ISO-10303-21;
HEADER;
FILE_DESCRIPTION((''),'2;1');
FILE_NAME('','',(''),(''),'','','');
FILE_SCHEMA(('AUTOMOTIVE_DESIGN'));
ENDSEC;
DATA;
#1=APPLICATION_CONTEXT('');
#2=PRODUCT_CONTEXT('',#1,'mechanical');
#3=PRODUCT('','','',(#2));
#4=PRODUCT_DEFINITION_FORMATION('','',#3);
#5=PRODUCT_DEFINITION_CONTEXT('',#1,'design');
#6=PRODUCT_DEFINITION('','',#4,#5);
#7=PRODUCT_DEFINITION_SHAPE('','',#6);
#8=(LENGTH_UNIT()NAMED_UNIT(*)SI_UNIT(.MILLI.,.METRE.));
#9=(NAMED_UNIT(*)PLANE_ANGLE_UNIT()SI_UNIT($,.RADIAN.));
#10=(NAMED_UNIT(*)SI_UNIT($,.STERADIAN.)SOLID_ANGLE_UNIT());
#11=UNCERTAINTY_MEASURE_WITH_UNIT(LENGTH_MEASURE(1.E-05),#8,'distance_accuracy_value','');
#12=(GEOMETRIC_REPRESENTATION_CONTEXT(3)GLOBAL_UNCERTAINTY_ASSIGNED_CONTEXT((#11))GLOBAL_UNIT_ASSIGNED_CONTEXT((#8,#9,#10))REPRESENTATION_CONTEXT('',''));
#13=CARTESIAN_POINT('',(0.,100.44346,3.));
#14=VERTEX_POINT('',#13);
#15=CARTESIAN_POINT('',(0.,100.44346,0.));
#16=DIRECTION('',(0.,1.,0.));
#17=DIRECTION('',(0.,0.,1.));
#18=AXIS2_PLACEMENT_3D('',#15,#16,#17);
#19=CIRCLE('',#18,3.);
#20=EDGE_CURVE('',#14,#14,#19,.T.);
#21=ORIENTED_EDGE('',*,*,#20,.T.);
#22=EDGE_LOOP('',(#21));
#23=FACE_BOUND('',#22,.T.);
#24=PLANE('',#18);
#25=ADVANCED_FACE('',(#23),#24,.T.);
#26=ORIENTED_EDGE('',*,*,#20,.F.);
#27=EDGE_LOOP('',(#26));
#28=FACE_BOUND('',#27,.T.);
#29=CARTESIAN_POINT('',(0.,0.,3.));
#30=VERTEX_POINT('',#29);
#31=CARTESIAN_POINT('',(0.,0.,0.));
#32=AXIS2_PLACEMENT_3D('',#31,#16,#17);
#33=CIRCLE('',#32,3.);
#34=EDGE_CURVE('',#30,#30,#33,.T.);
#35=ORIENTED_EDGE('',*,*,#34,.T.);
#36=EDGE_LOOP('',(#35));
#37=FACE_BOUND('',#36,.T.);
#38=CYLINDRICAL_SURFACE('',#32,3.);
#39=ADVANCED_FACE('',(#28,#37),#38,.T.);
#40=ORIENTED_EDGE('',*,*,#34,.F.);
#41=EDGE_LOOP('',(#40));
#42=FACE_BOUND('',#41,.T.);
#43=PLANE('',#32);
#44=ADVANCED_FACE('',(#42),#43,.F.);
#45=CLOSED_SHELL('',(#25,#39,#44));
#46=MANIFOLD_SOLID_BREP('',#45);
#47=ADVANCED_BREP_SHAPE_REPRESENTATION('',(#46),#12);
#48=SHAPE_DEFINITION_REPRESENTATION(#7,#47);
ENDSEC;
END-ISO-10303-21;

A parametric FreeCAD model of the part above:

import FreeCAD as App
import Part
import Sketcher
Q = App.Units.Quantity

doc = App.newDocument("Part")
params = doc.addObject("Spreadsheet::Sheet", "Params")
for row, (alias, value) in enumerate([
    ("sketch1_diameter", "6 mm"),
], start=1):
    params.set(f"A{row}", alias)
    params.set(f"B{row}", "=" + value)
    params.setAlias(f"B{row}", alias)

body = doc.addObject("PartDesign::Body", "Body")

# Sketch on XZ plane
sketch1 = body.newObject("Sketcher::SketchObject", "Sketch")
sketch1.AttachmentSupport = (doc.getObject("XZ_Plane"), [""])
sketch1.MapMode = "FlatFace"
sketch1.addGeometry(Part.Circle(App.Vector(0, 0, 0), App.Vector(0, 0, 1), 3), False)
sketch1.addConstraint(Sketcher.Constraint("Coincident", 0, 3, -1, 1))
sketch1.addConstraint(Sketcher.Constraint("Diameter", 0, Q("6 mm")))
sketch1.setExpression("Constraints[1]", "Params.sketch1_diameter")

# Sketch on XY plane
sketch2 = body.newObject("Sketcher::SketchObject", "Sketch001")
sketch2.AttachmentSupport = (doc.getObject("XY_Plane"), [""])
sketch2.MapMode = "FlatFace"
sketch2.addGeometry(Part.LineSegment(App.Vector(0, 0, 0), App.Vector(0, 100, 0)), False)
sketch2.addConstraint(Sketcher.Constraint("Vertical", 0))
sketch2.addConstraint(Sketcher.Constraint("Coincident", 0, 1, -1, 1))
sketch2.addConstraint(Sketcher.Constraint("DistanceY", 0, 1, 0, 2, Q("100.44346 mm")))
doc.recompute()

additivepipe = body.newObject("PartDesign::AdditivePipe", "AdditivePipe")
additivepipe.Profile = sketch1
additivepipe.Spine = (sketch2, ["Edge1"])

doc.recompute()
